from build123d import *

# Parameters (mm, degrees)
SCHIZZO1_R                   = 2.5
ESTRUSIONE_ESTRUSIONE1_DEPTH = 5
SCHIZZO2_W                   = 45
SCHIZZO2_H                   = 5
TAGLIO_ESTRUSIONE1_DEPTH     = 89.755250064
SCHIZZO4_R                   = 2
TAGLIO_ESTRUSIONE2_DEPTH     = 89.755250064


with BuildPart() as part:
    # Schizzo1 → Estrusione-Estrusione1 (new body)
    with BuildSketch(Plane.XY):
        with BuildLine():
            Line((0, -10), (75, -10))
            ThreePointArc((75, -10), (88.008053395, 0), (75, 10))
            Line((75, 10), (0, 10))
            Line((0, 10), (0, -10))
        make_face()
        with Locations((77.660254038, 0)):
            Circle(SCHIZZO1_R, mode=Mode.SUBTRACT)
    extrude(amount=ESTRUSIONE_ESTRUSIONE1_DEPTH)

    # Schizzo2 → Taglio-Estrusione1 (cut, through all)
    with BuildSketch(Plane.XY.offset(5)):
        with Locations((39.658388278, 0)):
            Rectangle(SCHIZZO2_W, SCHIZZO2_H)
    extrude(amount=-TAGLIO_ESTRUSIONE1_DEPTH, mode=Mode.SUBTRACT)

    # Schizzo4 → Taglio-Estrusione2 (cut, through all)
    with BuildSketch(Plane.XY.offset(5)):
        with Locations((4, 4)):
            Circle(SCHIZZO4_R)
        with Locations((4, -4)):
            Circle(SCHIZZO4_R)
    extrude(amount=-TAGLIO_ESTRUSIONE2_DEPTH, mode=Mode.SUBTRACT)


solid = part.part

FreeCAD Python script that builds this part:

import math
import FreeCAD as App
import Part
import Sketcher
from FreeCAD import Vector
Q = App.Units.Quantity

doc = App.newDocument("Part")
params = doc.addObject("Spreadsheet::Sheet", "Params")
for row, (alias, value) in enumerate([
    ("sketch1_diameter", "5 mm"),
    ("sketch1_width", "75 mm"),
    ("sketch1_height", "20 mm"),
    ("pad1_length", "5 mm"),
    ("sketch2_width", "45 mm"),
    ("sketch2_height", "5 mm"),
    ("sketch3_diameter", "4 mm"),
], start=1):
    params.set(f"A{row}", alias)
    params.set(f"B{row}", "=" + value)
    params.setAlias(f"B{row}", alias)

body = doc.addObject("PartDesign::Body", "Body")

# Sketch on XY plane
sketch1 = doc.addObject("Sketcher::SketchObject", "Sketch")
body.addObject(sketch1)
sketch1.AttachmentSupport = (doc.XY_Plane, [""])
sketch1.MapMode = "FlatFace"
sketch1.addGeometry([
    Part.LineSegment(Vector(0, -10, 0), Vector(75, -10, 0)),  # 0
    Part.ArcOfCircle(Part.Circle(Vector(77.7, 0, 0), Vector(0, 0, 1), 10.3), math.radians(-105), math.radians(105)),  # 1
    Part.LineSegment(Vector(75, 10, 0), Vector(0, 10, 0)),  # 2
    Part.LineSegment(Vector(0, 10, 0), Vector(0, -10, 0)),  # 3
    Part.Circle(Vector(77.7, 0, 0), Vector(0, 0, 1), 2.5),  # 4
], False)
sketch1.addConstraint([
    Sketcher.Constraint("Coincident", 0, 2, 1, 1),
    Sketcher.Constraint("Coincident", 1, 2, 2, 1),
    Sketcher.Constraint("Coincident", 2, 2, 3, 1),
    Sketcher.Constraint("Coincident", 3, 2, 0, 1),
    Sketcher.Constraint("Horizontal", 0),
    Sketcher.Constraint("Horizontal", 2),
    Sketcher.Constraint("Vertical", 3),
    Sketcher.Constraint("Coincident", 4, 3, 1, 3),
    Sketcher.Constraint("Symmetric", 2, 2, 3, 2, -1, 1),
    Sketcher.Constraint("PointOnObject", 1, 3, -1),
    Sketcher.Constraint("Diameter", 4, Q("5 mm")),
    Sketcher.Constraint("DistanceX", 0, 1, 0, 2, Q("75 mm")),
    Sketcher.Constraint("DistanceY", 3, 2, 3, 1, Q("20 mm")),
    Sketcher.Constraint("Radius", 1, Q("10.347799 mm")),
])
sketch1.setExpression("Constraints[10]", "Params.sketch1_diameter")
sketch1.setExpression("Constraints[11]", "Params.sketch1_width")
sketch1.setExpression("Constraints[12]", "Params.sketch1_height")
pad1 = doc.addObject("PartDesign::Pad", "Pad")
body.addObject(pad1)
pad1.Profile = sketch1
pad1.setExpression("Length", "Params.pad1_length")

# Sketch on XY plane
sketch2 = doc.addObject("Sketcher::SketchObject", "Sketch001")
body.addObject(sketch2)
sketch2.AttachmentSupport = (doc.XY_Plane, [""])
sketch2.MapMode = "FlatFace"
sketch2.AttachmentOffset = App.Placement(Vector(0, 0, 5), App.Rotation())
sketch2.addGeometry([
    Part.LineSegment(Vector(17, 2, 0), Vector(17, -2, 0)),
    Part.LineSegment(Vector(17, -2, 0), Vector(62, -2, 0)),
    Part.LineSegment(Vector(62, -2, 0), Vector(62, 2, 0)),
    Part.LineSegment(Vector(62, 2, 0), Vector(17, 2, 0)),
], False)
sketch2.addConstraint([
    Sketcher.Constraint("Coincident", 0, 2, 1, 1),
    Sketcher.Constraint("Coincident", 1, 2, 2, 1),
    Sketcher.Constraint("Coincident", 2, 2, 3, 1),
    Sketcher.Constraint("Coincident", 3, 2, 0, 1),
    Sketcher.Constraint("Vertical", 0),
    Sketcher.Constraint("Horizontal", 1),
    Sketcher.Constraint("Vertical", 2),
    Sketcher.Constraint("Horizontal", 3),
    Sketcher.Constraint("DistanceX", 1, 1, 1, 2, Q("45 mm")),
    Sketcher.Constraint("DistanceY", 0, 2, 0, 1, Q("5 mm")),
    Sketcher.Constraint("DistanceY", 0, 2, -1, 1, Q("2.5 mm")),
    Sketcher.Constraint("DistanceX", -1, 1, 0, 2, Q("17.158388 mm")),
])
sketch2.setExpression("Constraints[8]", "Params.sketch2_width")
sketch2.setExpression("Constraints[9]", "Params.sketch2_height")
pocket1 = doc.addObject("PartDesign::Pocket", "Pocket")
body.addObject(pocket1)
pocket1.Profile = sketch2
pocket1.Type = "ThroughAll"

# Sketch on XY plane
sketch3 = doc.addObject("Sketcher::SketchObject", "Sketch002")
body.addObject(sketch3)
sketch3.AttachmentSupport = (doc.XY_Plane, [""])
sketch3.MapMode = "FlatFace"
sketch3.AttachmentOffset = App.Placement(Vector(0, 0, 5), App.Rotation())
sketch3.addGeometry([
    Part.Circle(Vector(4, 4, 0), Vector(0, 0, 1), 2),
    Part.Circle(Vector(4, -4, 0), Vector(0, 0, 1), 2),
], False)
sketch3.addConstraint([
    Sketcher.Constraint("Equal", 0, 1),
    Sketcher.Constraint("Symmetric", 0, 3, 1, 3, -1),
    Sketcher.Constraint("Diameter", 0, Q("4 mm")),
    Sketcher.Constraint("DistanceX", -1, 1, 0, 3, Q("4 mm")),
    Sketcher.Constraint("DistanceY", -1, 1, 0, 3, Q("4 mm")),
])
sketch3.setExpression("Constraints[2]", "Params.sketch3_diameter")
pocket2 = doc.addObject("PartDesign::Pocket", "Pocket001")
body.addObject(pocket2)
pocket2.Profile = sketch3
pocket2.Type = "ThroughAll"

doc.recompute()
